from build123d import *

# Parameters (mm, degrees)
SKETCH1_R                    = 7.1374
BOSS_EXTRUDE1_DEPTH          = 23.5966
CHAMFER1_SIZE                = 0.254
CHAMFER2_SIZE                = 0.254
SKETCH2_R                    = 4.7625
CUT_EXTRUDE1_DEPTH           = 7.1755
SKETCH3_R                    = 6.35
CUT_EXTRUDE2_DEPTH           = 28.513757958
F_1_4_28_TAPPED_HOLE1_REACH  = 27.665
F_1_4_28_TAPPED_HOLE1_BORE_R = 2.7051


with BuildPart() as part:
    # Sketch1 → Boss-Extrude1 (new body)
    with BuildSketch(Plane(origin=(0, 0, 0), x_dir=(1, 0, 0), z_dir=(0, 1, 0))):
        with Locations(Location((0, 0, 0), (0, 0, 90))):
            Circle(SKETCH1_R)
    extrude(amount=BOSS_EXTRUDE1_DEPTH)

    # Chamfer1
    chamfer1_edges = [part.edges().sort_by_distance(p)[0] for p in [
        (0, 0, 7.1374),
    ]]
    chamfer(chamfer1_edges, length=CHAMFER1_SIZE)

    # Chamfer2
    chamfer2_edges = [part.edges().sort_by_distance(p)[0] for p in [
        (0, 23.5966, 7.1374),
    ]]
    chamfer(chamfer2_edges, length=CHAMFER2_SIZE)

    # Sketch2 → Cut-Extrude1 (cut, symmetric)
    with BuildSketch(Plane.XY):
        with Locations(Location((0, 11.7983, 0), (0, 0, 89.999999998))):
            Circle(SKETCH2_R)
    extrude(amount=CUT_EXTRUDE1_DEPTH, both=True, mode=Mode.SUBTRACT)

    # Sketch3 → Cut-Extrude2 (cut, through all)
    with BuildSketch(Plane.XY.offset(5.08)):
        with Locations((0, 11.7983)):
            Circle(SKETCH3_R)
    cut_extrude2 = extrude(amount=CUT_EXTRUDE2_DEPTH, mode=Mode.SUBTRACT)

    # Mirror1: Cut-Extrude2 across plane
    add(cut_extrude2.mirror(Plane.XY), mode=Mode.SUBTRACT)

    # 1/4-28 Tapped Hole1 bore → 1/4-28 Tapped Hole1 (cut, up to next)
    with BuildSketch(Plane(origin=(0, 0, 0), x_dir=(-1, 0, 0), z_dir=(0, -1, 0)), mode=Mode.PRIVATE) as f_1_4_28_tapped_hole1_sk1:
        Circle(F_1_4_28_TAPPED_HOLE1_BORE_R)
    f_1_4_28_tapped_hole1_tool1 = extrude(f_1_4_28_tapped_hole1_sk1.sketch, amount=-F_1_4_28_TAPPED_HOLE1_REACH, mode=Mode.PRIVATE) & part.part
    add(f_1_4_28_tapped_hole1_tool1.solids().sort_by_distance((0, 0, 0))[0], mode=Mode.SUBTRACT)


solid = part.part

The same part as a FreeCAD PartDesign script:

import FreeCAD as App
import Part
import Sketcher
from FreeCAD import Vector
Q = App.Units.Quantity


def edges_at(feature, points):
    """Names of the edges that pass closest to the given points."""
    edges = feature.Shape.Edges
    near = lambda p: min(range(len(edges)), key=lambda i: edges[i].distToShape(Part.Vertex(*p))[0])
    return sorted({f"Edge{near(p) + 1}" for p in points})

doc = App.newDocument("Part")
params = doc.addObject("Spreadsheet::Sheet", "Params")
for row, (alias, value) in enumerate([
    ("sketch1_diameter", "0.562 in"),
    ("pad1_length", "0.929 in"),
    ("chamfer_size", "0.01 in"),
    ("chamfer2_size", "0.01 in"),
    ("sketch2_diameter", "0.375 in"),
    ("pocket1_length", "0.565 in"),
    ("sketch3_diameter", "0.5 in"),
    ("sketch4_diameter", "0.213 in"),
], start=1):
    params.set(f"A{row}", alias)
    params.set(f"B{row}", "=" + value)
    params.setAlias(f"B{row}", alias)

body = doc.addObject("PartDesign::Body", "Body")

sketch1 = body.newObject("Sketcher::SketchObject", "Sketch")
sketch1.AttachmentSupport = (doc.getObject("XZ_Plane"), [""])
sketch1.MapMode = "FlatFace"
sketch1.addGeometry(Part.Circle(Vector(0, 0, 0), Vector(0, 0, 1), 7), False)
sketch1.addConstraint([
    Sketcher.Constraint("Coincident", 0, 3, -1, 1),
    Sketcher.Constraint("Diameter", 0, Q("0.562 in")),
])
sketch1.setExpression("Constraints[1]", "Params.sketch1_diameter")
pad1 = body.newObject("PartDesign::Pad", "Pad")
pad1.Profile = sketch1
pad1.setExpression("Length", "Params.pad1_length")
pad1.Reversed = True
doc.recompute()

chamfer = body.newObject("PartDesign::Chamfer", "Chamfer")
chamfer.Base = (pad1, edges_at(pad1, [(0, 0, 7.137)]))
chamfer.setExpression("Size", "Params.chamfer_size")
doc.recompute()

chamfer2 = body.newObject("PartDesign::Chamfer", "Chamfer001")
chamfer2.Base = (chamfer, edges_at(chamfer, [(0, 23.597, 7.137)]))
chamfer2.setExpression("Size", "Params.chamfer2_size")

sketch2 = body.newObject("Sketcher::SketchObject", "Sketch001")
sketch2.AttachmentSupport = (doc.getObject("XY_Plane"), [""])
sketch2.MapMode = "FlatFace"
sketch2.addGeometry(Part.Circle(Vector(0, 11.8, 0), Vector(0, 0, 1), 4.8), False)
sketch2.addConstraint([
    Sketcher.Constraint("PointOnObject", 0, 3, -2),
    Sketcher.Constraint("Diameter", 0, Q("0.375 in")),
    Sketcher.Constraint("DistanceY", -1, 1, 0, 3, Q("0.4645 in")),
])
sketch2.setExpression("Constraints[1]", "Params.sketch2_diameter")
pocket1 = body.newObject("PartDesign::Pocket", "Pocket")
pocket1.Profile = sketch2
pocket1.setExpression("Length", "Params.pocket1_length")
pocket1.Midplane = True

sketch3 = body.newObject("Sketcher::SketchObject", "Sketch002")
sketch3.AttachmentSupport = (doc.getObject("XY_Plane"), [""])
sketch3.MapMode = "FlatFace"
sketch3.AttachmentOffset = App.Placement(Vector(0, 0, 0.2 * 25.4), App.Rotation())
sketch3.addGeometry(Part.Circle(Vector(0, 12, 0), Vector(0, 0, 1), 6), False)
sketch3.addConstraint([
    Sketcher.Constraint("PointOnObject", 0, 3, -2),
    Sketcher.Constraint("Diameter", 0, Q("0.5 in")),
    Sketcher.Constraint("DistanceY", -1, 1, 0, 3, Q("0.4645 in")),
])
sketch3.setExpression("Constraints[1]", "Params.sketch3_diameter")
pocket2 = body.newObject("PartDesign::Pocket", "Pocket001")
pocket2.Profile = sketch3
pocket2.Type = "ThroughAll"
pocket2.Reversed = True
doc.recompute()

mirrored = body.newObject("PartDesign::Mirrored", "Mirrored")
mirrored.Originals = [pocket2]
mirrored.MirrorPlane = (doc.getObject("XY_Plane"), [""])
body.Tip = mirrored

sketch4 = body.newObject("Sketcher::SketchObject", "Sketch003")
sketch4.AttachmentSupport = (doc.getObject("XZ_Plane"), [""])
sketch4.MapMode = "FlatFace"
sketch4.addGeometry(Part.Circle(Vector(0, 0, 0), Vector(0, 0, 1), 2.7), False)
sketch4.addConstraint([
    Sketcher.Constraint("Coincident", 0, 3, -1, 1),
    Sketcher.Constraint("Diameter", 0, Q("0.213 in")),
])
sketch4.setExpression("Constraints[1]", "Params.sketch4_diameter")
pocket3 = body.newObject("PartDesign::Pocket", "Pocket002")
pocket3.Profile = sketch4
pocket3.Type = "UpToFirst"

doc.recompute()
